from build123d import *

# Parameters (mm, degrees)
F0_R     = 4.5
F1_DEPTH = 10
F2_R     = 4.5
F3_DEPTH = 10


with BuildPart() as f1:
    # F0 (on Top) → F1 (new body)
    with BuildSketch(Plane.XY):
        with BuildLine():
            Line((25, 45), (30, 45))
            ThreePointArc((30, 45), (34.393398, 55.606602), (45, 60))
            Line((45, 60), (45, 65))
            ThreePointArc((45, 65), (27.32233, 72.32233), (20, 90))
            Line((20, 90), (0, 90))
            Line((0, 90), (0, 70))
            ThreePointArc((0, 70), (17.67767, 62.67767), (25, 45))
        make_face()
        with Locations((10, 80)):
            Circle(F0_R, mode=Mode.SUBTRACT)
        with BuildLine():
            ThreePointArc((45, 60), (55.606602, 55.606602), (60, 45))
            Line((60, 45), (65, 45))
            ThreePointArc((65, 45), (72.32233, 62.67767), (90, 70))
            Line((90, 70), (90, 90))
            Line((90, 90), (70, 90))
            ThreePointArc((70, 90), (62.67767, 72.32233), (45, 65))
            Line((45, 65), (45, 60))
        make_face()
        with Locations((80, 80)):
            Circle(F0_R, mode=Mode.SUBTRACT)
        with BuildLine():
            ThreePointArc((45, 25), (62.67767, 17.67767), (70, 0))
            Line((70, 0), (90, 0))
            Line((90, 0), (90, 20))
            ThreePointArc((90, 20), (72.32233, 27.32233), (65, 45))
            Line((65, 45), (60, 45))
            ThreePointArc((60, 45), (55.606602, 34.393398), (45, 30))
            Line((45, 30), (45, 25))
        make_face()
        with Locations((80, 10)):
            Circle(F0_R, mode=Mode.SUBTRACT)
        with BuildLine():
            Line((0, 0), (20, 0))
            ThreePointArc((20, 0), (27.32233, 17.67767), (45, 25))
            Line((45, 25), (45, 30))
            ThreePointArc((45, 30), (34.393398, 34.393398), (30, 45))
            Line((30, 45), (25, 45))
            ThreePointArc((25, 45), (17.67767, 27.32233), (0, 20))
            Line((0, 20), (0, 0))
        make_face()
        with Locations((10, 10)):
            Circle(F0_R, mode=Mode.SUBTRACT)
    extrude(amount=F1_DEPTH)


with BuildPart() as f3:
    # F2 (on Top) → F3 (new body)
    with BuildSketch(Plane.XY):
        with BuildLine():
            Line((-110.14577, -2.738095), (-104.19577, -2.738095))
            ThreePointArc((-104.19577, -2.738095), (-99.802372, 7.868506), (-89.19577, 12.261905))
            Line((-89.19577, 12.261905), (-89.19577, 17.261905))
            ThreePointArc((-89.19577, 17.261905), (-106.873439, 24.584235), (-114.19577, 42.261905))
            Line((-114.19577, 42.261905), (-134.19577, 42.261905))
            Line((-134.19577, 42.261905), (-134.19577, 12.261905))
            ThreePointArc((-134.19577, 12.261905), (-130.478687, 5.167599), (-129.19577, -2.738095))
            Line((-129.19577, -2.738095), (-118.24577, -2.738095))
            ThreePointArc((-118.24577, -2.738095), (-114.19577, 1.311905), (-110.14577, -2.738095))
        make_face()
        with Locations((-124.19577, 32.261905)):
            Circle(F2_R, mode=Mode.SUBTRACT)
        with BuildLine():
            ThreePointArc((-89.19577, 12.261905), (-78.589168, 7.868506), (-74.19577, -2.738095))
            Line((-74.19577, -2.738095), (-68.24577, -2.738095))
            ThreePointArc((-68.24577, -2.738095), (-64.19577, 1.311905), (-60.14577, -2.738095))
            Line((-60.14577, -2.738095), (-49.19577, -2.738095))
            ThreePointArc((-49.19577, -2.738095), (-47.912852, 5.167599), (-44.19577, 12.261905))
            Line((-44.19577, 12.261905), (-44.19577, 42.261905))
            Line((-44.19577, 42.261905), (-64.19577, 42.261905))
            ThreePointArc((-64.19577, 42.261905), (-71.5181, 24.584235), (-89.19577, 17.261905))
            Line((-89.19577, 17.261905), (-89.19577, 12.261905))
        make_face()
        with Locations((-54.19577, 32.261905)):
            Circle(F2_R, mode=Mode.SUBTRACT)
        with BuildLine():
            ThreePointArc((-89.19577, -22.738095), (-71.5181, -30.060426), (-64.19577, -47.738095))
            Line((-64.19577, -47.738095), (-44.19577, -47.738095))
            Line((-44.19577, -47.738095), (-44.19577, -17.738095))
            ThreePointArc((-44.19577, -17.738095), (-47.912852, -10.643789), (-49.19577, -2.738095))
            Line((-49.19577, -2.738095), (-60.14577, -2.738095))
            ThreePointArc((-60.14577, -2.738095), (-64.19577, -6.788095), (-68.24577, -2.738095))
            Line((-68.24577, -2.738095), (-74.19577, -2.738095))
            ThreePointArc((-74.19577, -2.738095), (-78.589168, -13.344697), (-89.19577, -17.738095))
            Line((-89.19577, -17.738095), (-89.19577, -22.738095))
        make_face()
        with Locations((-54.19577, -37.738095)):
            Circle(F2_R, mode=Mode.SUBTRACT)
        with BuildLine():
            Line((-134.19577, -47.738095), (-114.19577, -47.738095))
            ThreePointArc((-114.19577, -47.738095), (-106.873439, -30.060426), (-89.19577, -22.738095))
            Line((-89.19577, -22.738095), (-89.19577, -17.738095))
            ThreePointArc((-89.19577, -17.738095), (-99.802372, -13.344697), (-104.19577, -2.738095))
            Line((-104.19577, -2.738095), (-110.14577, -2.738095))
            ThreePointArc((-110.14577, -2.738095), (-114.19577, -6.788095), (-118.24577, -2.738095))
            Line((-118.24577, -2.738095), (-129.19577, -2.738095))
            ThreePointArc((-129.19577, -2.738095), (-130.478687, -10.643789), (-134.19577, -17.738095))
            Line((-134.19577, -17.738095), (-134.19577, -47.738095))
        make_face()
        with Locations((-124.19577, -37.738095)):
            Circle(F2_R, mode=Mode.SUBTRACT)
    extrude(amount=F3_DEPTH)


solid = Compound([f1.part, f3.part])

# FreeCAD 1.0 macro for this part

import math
import FreeCAD as App
import Part
import Sketcher

V = App.Vector

doc = App.newDocument("Part")
params = doc.addObject("Spreadsheet::Sheet", "Params")
for row, (alias, value) in enumerate([
    ("sketch1_diameter", "9 mm"),
    ("sketch1_radius", "24.999998 mm"),
    ("sketch1_radius2", "14.999999 mm"),
    ("sketch1_width", "20 mm"),
    ("pad1_length", "10 mm"),
    ("sketch2_diameter", "9 mm"),
    ("sketch2_radius", "25.000002 mm"),
    ("sketch2_radius2", "15.000001 mm"),
    ("sketch2_diameter2", "8.1 mm"),
    ("sketch2_width", "20 mm"),
    ("pad2_length", "10 mm"),
], start=1):
    params.set(f"A{row}", alias)
    params.set(f"B{row}", "=" + value)
    params.setAlias(f"B{row}", alias)

body = doc.addObject("PartDesign::Body", "Body")

# Sketch on XY plane
sketch1 = body.newObject("Sketcher::SketchObject", "Sketch")
sketch1.AttachmentSupport = (doc.getObject("XY_Plane"), [""])
sketch1.MapMode = "FlatFace"
sketch1.addGeometry(Part.ArcOfCircle(Part.Circle(V(0, 45, 0), V(0, 0, 1), 25), math.radians(0), math.radians(90)), False)
sketch1.addGeometry(Part.ArcOfCircle(Part.Circle(V(0, 45, 0), V(0, 0, 1), 25), math.radians(-90), math.radians(0)), False)
sketch1.addGeometry(Part.LineSegment(V(0, 20, 0), V(0, 0, 0)), False)
sketch1.addGeometry(Part.LineSegment(V(0, 0, 0), V(20, 0, 0)), False)
sketch1.addGeometry(Part.ArcOfCircle(Part.Circle(V(45, 0, 0), V(0, 0, 1), 25), math.radians(90), math.radians(180)), False)
sketch1.addGeometry(Part.ArcOfCircle(Part.Circle(V(45, 0, 0), V(0, 0, 1), 25), math.radians(0), math.radians(90)), False)
sketch1.addGeometry(Part.LineSegment(V(70, 0, 0), V(90, 0, 0)), False)
sketch1.addGeometry(Part.LineSegment(V(90, 0, 0), V(90, 20, 0)), False)
sketch1.addGeometry(Part.ArcOfCircle(Part.Circle(V(90, 45, 0), V(0, 0, 1), 25), math.radians(180), math.radians(270)), False)
sketch1.addGeometry(Part.ArcOfCircle(Part.Circle(V(90, 45, 0), V(0, 0, 1), 25), math.radians(90), math.radians(180)), False)
sketch1.addGeometry(Part.LineSegment(V(90, 70, 0), V(90, 90, 0)), False)
sketch1.addGeometry(Part.LineSegment(V(90, 90, 0), V(70, 90, 0)), False)
sketch1.addGeometry(Part.ArcOfCircle(Part.Circle(V(45, 90, 0), V(0, 0, 1), 25), math.radians(-90), math.radians(0)), False)
sketch1.addGeometry(Part.ArcOfCircle(Part.Circle(V(45, 90, 0), V(0, 0, 1), 25), math.radians(180), math.radians(270)), False)
sketch1.addGeometry(Part.LineSegment(V(20, 90, 0), V(0, 90, 0)), False)
sketch1.addGeometry(Part.LineSegment(V(0, 90, 0), V(0, 70, 0)), False)
sketch1.addGeometry(Part.Circle(V(10, 10, 0), V(0, 0, 1), 4.5), False)
sketch1.addGeometry(Part.Circle(V(80, 10, 0), V(0, 0, 1), 4.5), False)
sketch1.addGeometry(Part.Circle(V(10, 80, 0), V(0, 0, 1), 4.5), False)
sketch1.addGeometry(Part.ArcOfCircle(Part.Circle(V(45, 45, 0), V(0, 0, 1), 15), math.radians(90), math.radians(180)), False)
sketch1.addGeometry(Part.ArcOfCircle(Part.Circle(V(45, 45, 0), V(0, 0, 1), 15), math.radians(0), math.radians(90)), False)
sketch1.addGeometry(Part.ArcOfCircle(Part.Circle(V(45, 45, 0), V(0, 0, 1), 15), math.radians(-90), math.radians(0)), False)
sketch1.addGeometry(Part.ArcOfCircle(Part.Circle(V(45, 45, 0), V(0, 0, 1), 15), math.radians(180), math.radians(270)), False)
sketch1.addGeometry(Part.Circle(V(80, 80, 0), V(0, 0, 1), 4.5), False)
sketch1.addConstraint(Sketcher.Constraint("Tangent", 0, 1, 1, 2))
sketch1.addConstraint(Sketcher.Constraint("Coincident", 1, 1, 2, 1))
sketch1.addConstraint(Sketcher.Constraint("Coincident", 2, 2, 3, 1))
sketch1.addConstraint(Sketcher.Constraint("Coincident", 3, 2, 4, 2))
sketch1.addConstraint(Sketcher.Constraint("Tangent", 4, 1, 5, 2))
sketch1.addConstraint(Sketcher.Constraint("Coincident", 5, 1, 6, 1))
sketch1.addConstraint(Sketcher.Constraint("Coincident", 6, 2, 7, 1))
sketch1.addConstraint(Sketcher.Constraint("Coincident", 7, 2, 8, 2))
sketch1.addConstraint(Sketcher.Constraint("Tangent", 8, 1, 9, 2))
sketch1.addConstraint(Sketcher.Constraint("Coincident", 9, 1, 10, 1))
sketch1.addConstraint(Sketcher.Constraint("Coincident", 10, 2, 11, 1))
sketch1.addConstraint(Sketcher.Constraint("Coincident", 11, 2, 12, 2))
sketch1.addConstraint(Sketcher.Constraint("Tangent", 12, 1, 13, 2))
sketch1.addConstraint(Sketcher.Constraint("Coincident", 13, 1, 14, 1))
sketch1.addConstraint(Sketcher.Constraint("Coincident", 14, 2, 15, 1))
sketch1.addConstraint(Sketcher.Constraint("Coincident", 15, 2, 0, 2))
sketch1.addConstraint(Sketcher.Constraint("Tangent", 19, 1, 20, 2))
sketch1.addConstraint(Sketcher.Constraint("Tangent", 20, 1, 21, 2))
sketch1.addConstraint(Sketcher.Constraint("Tangent", 21, 1, 22, 2))
sketch1.addConstraint(Sketcher.Constraint("Tangent", 22, 1, 19, 2))
sketch1.addConstraint(Sketcher.Constraint("Vertical", 2))
sketch1.addConstraint(Sketcher.Constraint("Horizontal", 3))
sketch1.addConstraint(Sketcher.Constraint("Horizontal", 6))
sketch1.addConstraint(Sketcher.Constraint("Vertical", 7))
sketch1.addConstraint(Sketcher.Constraint("Vertical", 10))
sketch1.addConstraint(Sketcher.Constraint("Horizontal", 11))
sketch1.addConstraint(Sketcher.Constraint("Horizontal", 14))
sketch1.addConstraint(Sketcher.Constraint("Vertical", 15))
sketch1.addConstraint(Sketcher.Constraint("Coincident", 2, 2, -1, 1))
sketch1.addConstraint(Sketcher.Constraint("Equal", 0, 1))
sketch1.addConstraint(Sketcher.Constraint("Equal", 1, 4))
sketch1.addConstraint(Sketcher.Constraint("Equal", 4, 5))
sketch1.addConstraint(Sketcher.Constraint("Equal", 5, 8))
sketch1.addConstraint(Sketcher.Constraint("Equal", 8, 9))
sketch1.addConstraint(Sketcher.Constraint("Equal", 9, 12))
sketch1.addConstraint(Sketcher.Constraint("Equal", 12, 13))
sketch1.addConstraint(Sketcher.Constraint("Equal", 16, 17))
sketch1.addConstraint(Sketcher.Constraint("Equal", 17, 18))
sketch1.addConstraint(Sketcher.Constraint("Equal", 19, 20))
sketch1.addConstraint(Sketcher.Constraint("Equal", 18, 23))
sketch1.addConstraint(Sketcher.Constraint("PointOnObject", 0, 3, -2))
sketch1.addConstraint(Sketcher.Constraint("PointOnObject", 4, 3, -1))
sketch1.addConstraint(Sketcher.Constraint("PointOnObject", 5, 1, -1))
sketch1.addConstraint(Sketcher.Constraint("PointOnObject", 14, 2, -2))
sketch1.addConstraint(Sketcher.Constraint("Horizontal", 1, 3, 8, 3))
sketch1.addConstraint(Sketcher.Constraint("Horizontal", 16, 3, 17, 3))
sketch1.addConstraint(Sketcher.Constraint("Horizontal", 9, 3, 19, 3))
sketch1.addConstraint(Sketcher.Constraint("Horizontal", 18, 3, 23, 3))
sketch1.addConstraint(Sketcher.Constraint("Horizontal", 22, 3, 0, 1))
sketch1.addConstraint(Sketcher.Constraint("Horizontal", 0, 1, 8, 1))
sketch1.addConstraint(Sketcher.Constraint("Horizontal", 13, 3, 10, 2))
sketch1.addConstraint(Sketcher.Constraint("Horizontal", 11, 2, 13, 1))
sketch1.addConstraint(Sketcher.Constraint("Horizontal", 8, 1, 20, 1))
sketch1.addConstraint(Sketcher.Constraint("Horizontal", 20, 1, 22, 1))
sketch1.addConstraint(Sketcher.Constraint("Vertical", 5, 3, 12, 3))
sketch1.addConstraint(Sketcher.Constraint("Vertical", 16, 3, 18, 3))
sketch1.addConstraint(Sketcher.Constraint("Vertical", 13, 3, 19, 3))
sketch1.addConstraint(Sketcher.Constraint("Vertical", 17, 3, 23, 3))
sketch1.addConstraint(Sketcher.Constraint("Vertical", 22, 3, 4, 1))
sketch1.addConstraint(Sketcher.Constraint("Vertical", 9, 3, 6, 2))
sketch1.addConstraint(Sketcher.Constraint("Vertical", 7, 2, 9, 1))
sketch1.addConstraint(Sketcher.Constraint("Vertical", 4, 1, 12, 1))
sketch1.addConstraint(Sketcher.Constraint("Vertical", 12, 1, 19, 1))
sketch1.addConstraint(Sketcher.Constraint("Vertical", 19, 1, 21, 1))
sketch1.addConstraint(Sketcher.Constraint("Equal", 3, 6))
sketch1.addConstraint(Sketcher.Constraint("Equal", 14, 2))
sketch1.addConstraint(Sketcher.Constraint("Equal", 7, 10))
sketch1.addConstraint(Sketcher.Constraint("Diameter", 16, 9.0))
sketch1.addConstraint(Sketcher.Constraint("Radius", 0, 24.999998))
sketch1.addConstraint(Sketcher.Constraint("Radius", 19, 14.999999))
sketch1.addConstraint(Sketcher.Constraint("DistanceX", 3, 1, 3, 2, 20.0))
sketch1.addConstraint(Sketcher.Constraint("DistanceX", -1, 1, 16, 3, 10.0))
sketch1.addConstraint(Sketcher.Constraint("DistanceY", -1, 1, 16, 3, 10.0))
sketch1.addConstraint(Sketcher.Constraint("DistanceX", -1, 1, 17, 3, 80.0))
sketch1.addConstraint(Sketcher.Constraint("DistanceY", -1, 1, 18, 3, 80.0))
sketch1.setExpression("Constraints[67]", "Params.sketch1_diameter")
sketch1.setExpression("Constraints[68]", "Params.sketch1_radius")
sketch1.setExpression("Constraints[69]", "Params.sketch1_radius2")
sketch1.setExpression("Constraints[70]", "Params.sketch1_width")
pad1 = body.newObject("PartDesign::Pad", "Pad")
pad1.Profile = sketch1
pad1.setExpression("Length", "Params.pad1_length")
body2 = doc.addObject("PartDesign::Body", "Body001")

# Sketch on XY plane
sketch2 = body2.newObject("Sketcher::SketchObject", "Sketch001")
sketch2.AttachmentSupport = (doc.getObject("XY_Plane001"), [""])
sketch2.MapMode = "FlatFace"
sketch2.addGeometry(Part.ArcOfCircle(Part.Circle(V(-154.2, -2.7, 0), V(0, 0, 1), 25), math.radians(0), math.radians(37)), False)
sketch2.addGeometry(Part.ArcOfCircle(Part.Circle(V(-154.2, -2.7, 0), V(0, 0, 1), 25), math.radians(-37), math.radians(0)), False)
sketch2.addGeometry(Part.LineSegment(V(-134.2, -17.7, 0), V(-134.2, -47.7, 0)), False)
sketch2.addGeometry(Part.LineSegment(V(-134.2, -47.7, 0), V(-114.2, -47.7, 0)), False)
sketch2.addGeometry(Part.ArcOfCircle(Part.Circle(V(-89.2, -47.7, 0), V(0, 0, 1), 25), math.radians(90), math.radians(180)), False)
sketch2.addGeometry(Part.ArcOfCircle(Part.Circle(V(-89.2, -47.7, 0), V(0, 0, 1), 25), math.radians(0), math.radians(90)), False)
sketch2.addGeometry(Part.LineSegment(V(-64.2, -47.7, 0), V(-44.2, -47.7, 0)), False)
sketch2.addGeometry(Part.LineSegment(V(-44.2, -47.7, 0), V(-44.2, -17.7, 0)), False)
sketch2.addGeometry(Part.ArcOfCircle(Part.Circle(V(-24.2, -2.7, 0), V(0, 0, 1), 25), math.radians(-180), math.radians(-143)), False)
sketch2.addGeometry(Part.ArcOfCircle(Part.Circle(V(-24.2, -2.7, 0), V(0, 0, 1), 25), math.radians(143), math.radians(180)), False)
sketch2.addGeometry(Part.LineSegment(V(-44.2, 12.3, 0), V(-44.2, 42.3, 0)), False)
sketch2.addGeometry(Part.LineSegment(V(-44.2, 42.3, 0), V(-64.2, 42.3, 0)), False)
sketch2.addGeometry(Part.ArcOfCircle(Part.Circle(V(-89.2, 42.3, 0), V(0, 0, 1), 25), math.radians(-90), math.radians(0)), False)
sketch2.addGeometry(Part.ArcOfCircle(Part.Circle(V(-89.2, 42.3, 0), V(0, 0, 1), 25), math.radians(-180), math.radians(-90)), False)
sketch2.addGeometry(Part.LineSegment(V(-114.2, 42.3, 0), V(-134.2, 42.3, 0)), False)
sketch2.addGeometry(Part.LineSegment(V(-134.2, 42.3, 0), V(-134.2, 12.3, 0)), False)
sketch2.addGeometry(Part.Circle(V(-124.2, -37.7, 0), V(0, 0, 1), 4.5), False)
sketch2.addGeometry(Part.Circle(V(-114.2, -2.7, 0), V(0, 0, 1), 4), False)
sketch2.addGeometry(Part.Circle(V(-54.2, -37.7, 0), V(0, 0, 1), 4.5), False)
sketch2.addGeometry(Part.ArcOfCircle(Part.Circle(V(-89.2, -2.7, 0), V(0, 0, 1), 15), math.radians(90), math.radians(180)), False)
sketch2.addGeometry(Part.ArcOfCircle(Part.Circle(V(-89.2, -2.7, 0), V(0, 0, 1), 15), math.radians(0), math.radians(90)), False)
sketch2.addGeometry(Part.ArcOfCircle(Part.Circle(V(-89.2, -2.7, 0), V(0, 0, 1), 15), math.radians(-90), math.radians(0)), False)
sketch2.addGeometry(Part.ArcOfCircle(Part.Circle(V(-89.2, -2.7, 0), V(0, 0, 1), 15), math.radians(180), math.radians(270)), False)
sketch2.addGeometry(Part.Circle(V(-124.2, 32.3, 0), V(0, 0, 1), 4.5), False)
sketch2.addGeometry(Part.Circle(V(-64.2, -2.7, 0), V(0, 0, 1), 4), False)
sketch2.addGeometry(Part.Circle(V(-54.2, 32.3, 0), V(0, 0, 1), 4.5), False)
sketch2.addConstraint(Sketcher.Constraint("Tangent", 0, 1, 1, 2))
sketch2.addConstraint(Sketcher.Constraint("Coincident", 1, 1, 2, 1))
sketch2.addConstraint(Sketcher.Constraint("Coincident", 2, 2, 3, 1))
sketch2.addConstraint(Sketcher.Constraint("Coincident", 3, 2, 4, 2))
sketch2.addConstraint(Sketcher.Constraint("Tangent", 4, 1, 5, 2))
sketch2.addConstraint(Sketcher.Constraint("Coincident", 5, 1, 6, 1))
sketch2.addConstraint(Sketcher.Constraint("Coincident", 6, 2, 7, 1))
sketch2.addConstraint(Sketcher.Constraint("Coincident", 7, 2, 8, 2))
sketch2.addConstraint(Sketcher.Constraint("Tangent", 8, 1, 9, 2))
sketch2.addConstraint(Sketcher.Constraint("Coincident", 9, 1, 10, 1))
sketch2.addConstraint(Sketcher.Constraint("Coincident", 10, 2, 11, 1))
sketch2.addConstraint(Sketcher.Constraint("Coincident", 11, 2, 12, 2))
sketch2.addConstraint(Sketcher.Constraint("Tangent", 12, 1, 13, 2))
sketch2.addConstraint(Sketcher.Constraint("Coincident", 13, 1, 14, 1))
sketch2.addConstraint(Sketcher.Constraint("Coincident", 14, 2, 15, 1))
sketch2.addConstraint(Sketcher.Constraint("Coincident", 15, 2, 0, 2))
sketch2.addConstraint(Sketcher.Constraint("Tangent", 19, 1, 20, 2))
sketch2.addConstraint(Sketcher.Constraint("Tangent", 20, 1, 21, 2))
sketch2.addConstraint(Sketcher.Constraint("Tangent", 21, 1, 22, 2))
sketch2.addConstraint(Sketcher.Constraint("Tangent", 22, 1, 19, 2))
sketch2.addConstraint(Sketcher.Constraint("Vertical", 2))
sketch2.addConstraint(Sketcher.Constraint("Horizontal", 3))
sketch2.addConstraint(Sketcher.Constraint("Horizontal", 6))
sketch2.addConstraint(Sketcher.Constraint("Vertical", 7))
sketch2.addConstraint(Sketcher.Constraint("Vertical", 10))
sketch2.addConstraint(Sketcher.Constraint("Horizontal", 11))
sketch2.addConstraint(Sketcher.Constraint("Horizontal", 14))
sketch2.addConstraint(Sketcher.Constraint("Vertical", 15))
sketch2.addConstraint(Sketcher.Constraint("Equal", 0, 1))
sketch2.addConstraint(Sketcher.Constraint("Equal", 4, 5))
sketch2.addConstraint(Sketcher.Constraint("Equal", 8, 9))
sketch2.addConstraint(Sketcher.Constraint("Equal", 5, 12))
sketch2.addConstraint(Sketcher.Constraint("Equal", 12, 13))
sketch2.addConstraint(Sketcher.Constraint("Equal", 16, 18))
sketch2.addConstraint(Sketcher.Constraint("Equal", 19, 20))
sketch2.addConstraint(Sketcher.Constraint("Equal", 18, 23))
sketch2.addConstraint(Sketcher.Constraint("Equal", 17, 24))
sketch2.addConstraint(Sketcher.Constraint("Equal", 23, 25))
sketch2.addConstraint(Sketcher.Constraint("Horizontal", 0, 3, 8, 3))
sketch2.addConstraint(Sketcher.Constraint("Horizontal", 16, 3, 18, 3))
sketch2.addConstraint(Sketcher.Constraint("Horizontal", 17, 3, 19, 3))
sketch2.addConstraint(Sketcher.Constraint("Horizontal", 22, 3, 24, 3))
sketch2.addConstraint(Sketcher.Constraint("Horizontal", 23, 3, 25, 3))
sketch2.addConstraint(Sketcher.Constraint("Horizontal", 24, 3, 0, 1))
sketch2.addConstraint(Sketcher.Constraint("Horizontal", 5, 3, 2, 2))
sketch2.addConstraint(Sketcher.Constraint("Horizontal", 3, 2, 5, 1))
sketch2.addConstraint(Sketcher.Constraint("Horizontal", 1, 1, 7, 2))
sketch2.addConstraint(Sketcher.Constraint("Horizontal", 0, 1, 8, 1))
sketch2.addConstraint(Sketcher.Constraint("Horizontal", 13, 3, 10, 2))
sketch2.addConstraint(Sketcher.Constraint("Horizontal", 11, 2, 13, 1))
sketch2.addConstraint(Sketcher.Constraint("Horizontal", 9, 1, 15, 2))
sketch2.addConstraint(Sketcher.Constraint("Horizontal", 15, 2, 19, 1))
sketch2.addConstraint(Sketcher.Constraint("Horizontal", 8, 1, 20, 1))
sketch2.addConstraint(Sketcher.Constraint("Horizontal", 7, 2, 21, 1))
sketch2.addConstraint(Sketcher.Constraint("Horizontal", 20, 1, 22, 1))
sketch2.addConstraint(Sketcher.Constraint("Vertical", 5, 3, 12, 3))
sketch2.addConstraint(Sketcher.Constraint("Vertical", 13, 3, 19, 3))
sketch2.addConstraint(Sketcher.Constraint("Vertical", 16, 3, 23, 3))
sketch2.addConstraint(Sketcher.Constraint("Vertical", 18, 3, 25, 3))
sketch2.addConstraint(Sketcher.Constraint("Vertical", 17, 3, 3, 2))
sketch2.addConstraint(Sketcher.Constraint("Vertical", 22, 3, 4, 1))
sketch2.addConstraint(Sketcher.Constraint("Vertical", 24, 3, 5, 1))
sketch2.addConstraint(Sketcher.Constraint("Vertical", 7, 2, 9, 1))
sketch2.addConstraint(Sketcher.Constraint("Vertical", 4, 1, 12, 1))
sketch2.addConstraint(Sketcher.Constraint("Vertical", 12, 1, 19, 1))
sketch2.addConstraint(Sketcher.Constraint("Vertical", 19, 1, 21, 1))
sketch2.addConstraint(Sketcher.Constraint("Equal", 3, 6))
sketch2.addConstraint(Sketcher.Constraint("Equal", 7, 10))
sketch2.addConstraint(Sketcher.Constraint("Diameter", 16, 9.0))
sketch2.addConstraint(Sketcher.Constraint("Radius", 4, 25.000002))
sketch2.addConstraint(Sketcher.Constraint("Radius", 19, 15.000001))
sketch2.addConstraint(Sketcher.Constraint("Diameter", 17, 8.1))
sketch2.addConstraint(Sketcher.Constraint("DistanceX", 3, 1, 3, 2, 20.0))
sketch2.addConstraint(Sketcher.Constraint("DistanceY", 2, 2, 2, 1, 30.0))
sketch2.addConstraint(Sketcher.Constraint("DistanceX", 0, 3, 8, 3, 130.0))
sketch2.addConstraint(Sketcher.Constraint("DistanceX", 16, 3, 5, 3, 35.0))
sketch2.addConstraint(Sketcher.Constraint("DistanceY", 5, 3, 16, 3, 10.0))
sketch2.addConstraint(Sketcher.Constraint("DistanceX", 4, 3, 18, 3, 34.999998))
sketch2.addConstraint(Sketcher.Constraint("DistanceY", 17, 3, 23, 3, 35.0))
sketch2.addConstraint(Sketcher.Constraint("DistanceX", 0, 1, 17, 3, 15.0))
sketch2.addConstraint(Sketcher.Constraint("DistanceX", 0, 3, -1, 1, 154.195761))
sketch2.addConstraint(Sketcher.Constraint("DistanceY", 0, 3, -1, 1, 2.738092))
sketch2.setExpression("Constraints[68]", "Params.sketch2_diameter")
sketch2.setExpression("Constraints[69]", "Params.sketch2_radius")
sketch2.setExpression("Constraints[70]", "Params.sketch2_radius2")
sketch2.setExpression("Constraints[71]", "Params.sketch2_diameter2")
sketch2.setExpression("Constraints[72]", "Params.sketch2_width")
pad2 = body2.newObject("PartDesign::Pad", "Pad001")
pad2.Profile = sketch2
pad2.setExpression("Length", "Params.pad2_length")

doc.recompute()
